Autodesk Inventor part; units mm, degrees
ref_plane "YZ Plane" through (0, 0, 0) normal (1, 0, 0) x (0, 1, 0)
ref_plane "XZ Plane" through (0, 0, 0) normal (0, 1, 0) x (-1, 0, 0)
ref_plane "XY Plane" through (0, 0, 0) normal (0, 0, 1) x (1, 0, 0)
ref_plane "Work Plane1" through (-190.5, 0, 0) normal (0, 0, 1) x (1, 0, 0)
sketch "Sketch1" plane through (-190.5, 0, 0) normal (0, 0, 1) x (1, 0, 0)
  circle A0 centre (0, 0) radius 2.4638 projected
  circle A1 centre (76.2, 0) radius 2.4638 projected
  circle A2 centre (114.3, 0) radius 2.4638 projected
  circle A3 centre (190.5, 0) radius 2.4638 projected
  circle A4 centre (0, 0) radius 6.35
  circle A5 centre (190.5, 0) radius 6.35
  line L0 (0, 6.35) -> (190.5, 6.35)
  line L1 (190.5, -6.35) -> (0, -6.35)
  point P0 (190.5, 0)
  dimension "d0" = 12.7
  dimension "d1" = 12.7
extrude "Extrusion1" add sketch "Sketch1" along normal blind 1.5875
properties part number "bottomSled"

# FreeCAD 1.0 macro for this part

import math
import FreeCAD as App
import Part
import Sketcher
Q = App.Units.Quantity

doc = App.newDocument("Part")
body = doc.addObject("PartDesign::Body", "Body")

# Sketch on XY plane
sketch1 = doc.addObject("Sketcher::SketchObject", "Sketch")
body.addObject(sketch1)
sketch1.AttachmentSupport = (doc.XY_Plane, [""])
sketch1.MapMode = "FlatFace"
sketch1.addGeometry(Part.ArcOfCircle(Part.Circle(App.Vector(-190.5, 0, 0), App.Vector(0, 0, 1), 6.3), math.radians(90), math.radians(270)), False)
sketch1.addGeometry(Part.LineSegment(App.Vector(-190.5, -6.3, 0), App.Vector(0, -6.3, 0)), False)
sketch1.addGeometry(Part.ArcOfCircle(Part.Circle(App.Vector(0, 0, 0), App.Vector(0, 0, 1), 6.3), math.radians(-90), math.radians(90)), False)
sketch1.addGeometry(Part.LineSegment(App.Vector(0, 6.3, 0), App.Vector(-190.5, 6.3, 0)), False)
sketch1.addGeometry(Part.Circle(App.Vector(-190.5, 0, 0), App.Vector(0, 0, 1), 2.5), False)
sketch1.addGeometry(Part.Circle(App.Vector(-114.3, 0, 0), App.Vector(0, 0, 1), 2.5), False)
sketch1.addGeometry(Part.Circle(App.Vector(-76.2, 0, 0), App.Vector(0, 0, 1), 2.5), False)
sketch1.addGeometry(Part.Circle(App.Vector(0, 0, 0), App.Vector(0, 0, 1), 2.5), False)
sketch1.addConstraint(Sketcher.Constraint("Tangent", 0, 2, 1, 1))
sketch1.addConstraint(Sketcher.Constraint("Tangent", 1, 2, 2, 1))
sketch1.addConstraint(Sketcher.Constraint("Tangent", 2, 2, 3, 1))
sketch1.addConstraint(Sketcher.Constraint("Tangent", 3, 2, 0, 1))
sketch1.addConstraint(Sketcher.Constraint("Horizontal", 1))
sketch1.addConstraint(Sketcher.Constraint("Horizontal", 3))
sketch1.addConstraint(Sketcher.Constraint("Coincident", 2, 3, -1, 1))
sketch1.addConstraint(Sketcher.Constraint("Coincident", 7, 3, -1, 1))
sketch1.addConstraint(Sketcher.Constraint("Coincident", 4, 3, 0, 3))
sketch1.addConstraint(Sketcher.Constraint("Equal", 4, 5))
sketch1.addConstraint(Sketcher.Constraint("Equal", 5, 6))
sketch1.addConstraint(Sketcher.Constraint("Equal", 6, 7))
sketch1.addConstraint(Sketcher.Constraint("PointOnObject", 5, 3, -1))
sketch1.addConstraint(Sketcher.Constraint("PointOnObject", 6, 3, -1))
sketch1.addConstraint(Sketcher.Constraint("Radius", 0, Q("0.25 in")))
sketch1.addConstraint(Sketcher.Constraint("Diameter", 4, Q("0.194 in")))
sketch1.addConstraint(Sketcher.Constraint("DistanceX", 1, 1, 1, 2, Q("7.5 in")))
sketch1.addConstraint(Sketcher.Constraint("DistanceX", 6, 3, -1, 1, Q("3 in")))
sketch1.addConstraint(Sketcher.Constraint("DistanceX", 0, 3, 5, 3, Q("3 in")))
pad1 = doc.addObject("PartDesign::Pad", "Pad")
body.addObject(pad1)
pad1.Profile = sketch1
pad1.Length = Q("0.0625 in")

doc.recompute()
